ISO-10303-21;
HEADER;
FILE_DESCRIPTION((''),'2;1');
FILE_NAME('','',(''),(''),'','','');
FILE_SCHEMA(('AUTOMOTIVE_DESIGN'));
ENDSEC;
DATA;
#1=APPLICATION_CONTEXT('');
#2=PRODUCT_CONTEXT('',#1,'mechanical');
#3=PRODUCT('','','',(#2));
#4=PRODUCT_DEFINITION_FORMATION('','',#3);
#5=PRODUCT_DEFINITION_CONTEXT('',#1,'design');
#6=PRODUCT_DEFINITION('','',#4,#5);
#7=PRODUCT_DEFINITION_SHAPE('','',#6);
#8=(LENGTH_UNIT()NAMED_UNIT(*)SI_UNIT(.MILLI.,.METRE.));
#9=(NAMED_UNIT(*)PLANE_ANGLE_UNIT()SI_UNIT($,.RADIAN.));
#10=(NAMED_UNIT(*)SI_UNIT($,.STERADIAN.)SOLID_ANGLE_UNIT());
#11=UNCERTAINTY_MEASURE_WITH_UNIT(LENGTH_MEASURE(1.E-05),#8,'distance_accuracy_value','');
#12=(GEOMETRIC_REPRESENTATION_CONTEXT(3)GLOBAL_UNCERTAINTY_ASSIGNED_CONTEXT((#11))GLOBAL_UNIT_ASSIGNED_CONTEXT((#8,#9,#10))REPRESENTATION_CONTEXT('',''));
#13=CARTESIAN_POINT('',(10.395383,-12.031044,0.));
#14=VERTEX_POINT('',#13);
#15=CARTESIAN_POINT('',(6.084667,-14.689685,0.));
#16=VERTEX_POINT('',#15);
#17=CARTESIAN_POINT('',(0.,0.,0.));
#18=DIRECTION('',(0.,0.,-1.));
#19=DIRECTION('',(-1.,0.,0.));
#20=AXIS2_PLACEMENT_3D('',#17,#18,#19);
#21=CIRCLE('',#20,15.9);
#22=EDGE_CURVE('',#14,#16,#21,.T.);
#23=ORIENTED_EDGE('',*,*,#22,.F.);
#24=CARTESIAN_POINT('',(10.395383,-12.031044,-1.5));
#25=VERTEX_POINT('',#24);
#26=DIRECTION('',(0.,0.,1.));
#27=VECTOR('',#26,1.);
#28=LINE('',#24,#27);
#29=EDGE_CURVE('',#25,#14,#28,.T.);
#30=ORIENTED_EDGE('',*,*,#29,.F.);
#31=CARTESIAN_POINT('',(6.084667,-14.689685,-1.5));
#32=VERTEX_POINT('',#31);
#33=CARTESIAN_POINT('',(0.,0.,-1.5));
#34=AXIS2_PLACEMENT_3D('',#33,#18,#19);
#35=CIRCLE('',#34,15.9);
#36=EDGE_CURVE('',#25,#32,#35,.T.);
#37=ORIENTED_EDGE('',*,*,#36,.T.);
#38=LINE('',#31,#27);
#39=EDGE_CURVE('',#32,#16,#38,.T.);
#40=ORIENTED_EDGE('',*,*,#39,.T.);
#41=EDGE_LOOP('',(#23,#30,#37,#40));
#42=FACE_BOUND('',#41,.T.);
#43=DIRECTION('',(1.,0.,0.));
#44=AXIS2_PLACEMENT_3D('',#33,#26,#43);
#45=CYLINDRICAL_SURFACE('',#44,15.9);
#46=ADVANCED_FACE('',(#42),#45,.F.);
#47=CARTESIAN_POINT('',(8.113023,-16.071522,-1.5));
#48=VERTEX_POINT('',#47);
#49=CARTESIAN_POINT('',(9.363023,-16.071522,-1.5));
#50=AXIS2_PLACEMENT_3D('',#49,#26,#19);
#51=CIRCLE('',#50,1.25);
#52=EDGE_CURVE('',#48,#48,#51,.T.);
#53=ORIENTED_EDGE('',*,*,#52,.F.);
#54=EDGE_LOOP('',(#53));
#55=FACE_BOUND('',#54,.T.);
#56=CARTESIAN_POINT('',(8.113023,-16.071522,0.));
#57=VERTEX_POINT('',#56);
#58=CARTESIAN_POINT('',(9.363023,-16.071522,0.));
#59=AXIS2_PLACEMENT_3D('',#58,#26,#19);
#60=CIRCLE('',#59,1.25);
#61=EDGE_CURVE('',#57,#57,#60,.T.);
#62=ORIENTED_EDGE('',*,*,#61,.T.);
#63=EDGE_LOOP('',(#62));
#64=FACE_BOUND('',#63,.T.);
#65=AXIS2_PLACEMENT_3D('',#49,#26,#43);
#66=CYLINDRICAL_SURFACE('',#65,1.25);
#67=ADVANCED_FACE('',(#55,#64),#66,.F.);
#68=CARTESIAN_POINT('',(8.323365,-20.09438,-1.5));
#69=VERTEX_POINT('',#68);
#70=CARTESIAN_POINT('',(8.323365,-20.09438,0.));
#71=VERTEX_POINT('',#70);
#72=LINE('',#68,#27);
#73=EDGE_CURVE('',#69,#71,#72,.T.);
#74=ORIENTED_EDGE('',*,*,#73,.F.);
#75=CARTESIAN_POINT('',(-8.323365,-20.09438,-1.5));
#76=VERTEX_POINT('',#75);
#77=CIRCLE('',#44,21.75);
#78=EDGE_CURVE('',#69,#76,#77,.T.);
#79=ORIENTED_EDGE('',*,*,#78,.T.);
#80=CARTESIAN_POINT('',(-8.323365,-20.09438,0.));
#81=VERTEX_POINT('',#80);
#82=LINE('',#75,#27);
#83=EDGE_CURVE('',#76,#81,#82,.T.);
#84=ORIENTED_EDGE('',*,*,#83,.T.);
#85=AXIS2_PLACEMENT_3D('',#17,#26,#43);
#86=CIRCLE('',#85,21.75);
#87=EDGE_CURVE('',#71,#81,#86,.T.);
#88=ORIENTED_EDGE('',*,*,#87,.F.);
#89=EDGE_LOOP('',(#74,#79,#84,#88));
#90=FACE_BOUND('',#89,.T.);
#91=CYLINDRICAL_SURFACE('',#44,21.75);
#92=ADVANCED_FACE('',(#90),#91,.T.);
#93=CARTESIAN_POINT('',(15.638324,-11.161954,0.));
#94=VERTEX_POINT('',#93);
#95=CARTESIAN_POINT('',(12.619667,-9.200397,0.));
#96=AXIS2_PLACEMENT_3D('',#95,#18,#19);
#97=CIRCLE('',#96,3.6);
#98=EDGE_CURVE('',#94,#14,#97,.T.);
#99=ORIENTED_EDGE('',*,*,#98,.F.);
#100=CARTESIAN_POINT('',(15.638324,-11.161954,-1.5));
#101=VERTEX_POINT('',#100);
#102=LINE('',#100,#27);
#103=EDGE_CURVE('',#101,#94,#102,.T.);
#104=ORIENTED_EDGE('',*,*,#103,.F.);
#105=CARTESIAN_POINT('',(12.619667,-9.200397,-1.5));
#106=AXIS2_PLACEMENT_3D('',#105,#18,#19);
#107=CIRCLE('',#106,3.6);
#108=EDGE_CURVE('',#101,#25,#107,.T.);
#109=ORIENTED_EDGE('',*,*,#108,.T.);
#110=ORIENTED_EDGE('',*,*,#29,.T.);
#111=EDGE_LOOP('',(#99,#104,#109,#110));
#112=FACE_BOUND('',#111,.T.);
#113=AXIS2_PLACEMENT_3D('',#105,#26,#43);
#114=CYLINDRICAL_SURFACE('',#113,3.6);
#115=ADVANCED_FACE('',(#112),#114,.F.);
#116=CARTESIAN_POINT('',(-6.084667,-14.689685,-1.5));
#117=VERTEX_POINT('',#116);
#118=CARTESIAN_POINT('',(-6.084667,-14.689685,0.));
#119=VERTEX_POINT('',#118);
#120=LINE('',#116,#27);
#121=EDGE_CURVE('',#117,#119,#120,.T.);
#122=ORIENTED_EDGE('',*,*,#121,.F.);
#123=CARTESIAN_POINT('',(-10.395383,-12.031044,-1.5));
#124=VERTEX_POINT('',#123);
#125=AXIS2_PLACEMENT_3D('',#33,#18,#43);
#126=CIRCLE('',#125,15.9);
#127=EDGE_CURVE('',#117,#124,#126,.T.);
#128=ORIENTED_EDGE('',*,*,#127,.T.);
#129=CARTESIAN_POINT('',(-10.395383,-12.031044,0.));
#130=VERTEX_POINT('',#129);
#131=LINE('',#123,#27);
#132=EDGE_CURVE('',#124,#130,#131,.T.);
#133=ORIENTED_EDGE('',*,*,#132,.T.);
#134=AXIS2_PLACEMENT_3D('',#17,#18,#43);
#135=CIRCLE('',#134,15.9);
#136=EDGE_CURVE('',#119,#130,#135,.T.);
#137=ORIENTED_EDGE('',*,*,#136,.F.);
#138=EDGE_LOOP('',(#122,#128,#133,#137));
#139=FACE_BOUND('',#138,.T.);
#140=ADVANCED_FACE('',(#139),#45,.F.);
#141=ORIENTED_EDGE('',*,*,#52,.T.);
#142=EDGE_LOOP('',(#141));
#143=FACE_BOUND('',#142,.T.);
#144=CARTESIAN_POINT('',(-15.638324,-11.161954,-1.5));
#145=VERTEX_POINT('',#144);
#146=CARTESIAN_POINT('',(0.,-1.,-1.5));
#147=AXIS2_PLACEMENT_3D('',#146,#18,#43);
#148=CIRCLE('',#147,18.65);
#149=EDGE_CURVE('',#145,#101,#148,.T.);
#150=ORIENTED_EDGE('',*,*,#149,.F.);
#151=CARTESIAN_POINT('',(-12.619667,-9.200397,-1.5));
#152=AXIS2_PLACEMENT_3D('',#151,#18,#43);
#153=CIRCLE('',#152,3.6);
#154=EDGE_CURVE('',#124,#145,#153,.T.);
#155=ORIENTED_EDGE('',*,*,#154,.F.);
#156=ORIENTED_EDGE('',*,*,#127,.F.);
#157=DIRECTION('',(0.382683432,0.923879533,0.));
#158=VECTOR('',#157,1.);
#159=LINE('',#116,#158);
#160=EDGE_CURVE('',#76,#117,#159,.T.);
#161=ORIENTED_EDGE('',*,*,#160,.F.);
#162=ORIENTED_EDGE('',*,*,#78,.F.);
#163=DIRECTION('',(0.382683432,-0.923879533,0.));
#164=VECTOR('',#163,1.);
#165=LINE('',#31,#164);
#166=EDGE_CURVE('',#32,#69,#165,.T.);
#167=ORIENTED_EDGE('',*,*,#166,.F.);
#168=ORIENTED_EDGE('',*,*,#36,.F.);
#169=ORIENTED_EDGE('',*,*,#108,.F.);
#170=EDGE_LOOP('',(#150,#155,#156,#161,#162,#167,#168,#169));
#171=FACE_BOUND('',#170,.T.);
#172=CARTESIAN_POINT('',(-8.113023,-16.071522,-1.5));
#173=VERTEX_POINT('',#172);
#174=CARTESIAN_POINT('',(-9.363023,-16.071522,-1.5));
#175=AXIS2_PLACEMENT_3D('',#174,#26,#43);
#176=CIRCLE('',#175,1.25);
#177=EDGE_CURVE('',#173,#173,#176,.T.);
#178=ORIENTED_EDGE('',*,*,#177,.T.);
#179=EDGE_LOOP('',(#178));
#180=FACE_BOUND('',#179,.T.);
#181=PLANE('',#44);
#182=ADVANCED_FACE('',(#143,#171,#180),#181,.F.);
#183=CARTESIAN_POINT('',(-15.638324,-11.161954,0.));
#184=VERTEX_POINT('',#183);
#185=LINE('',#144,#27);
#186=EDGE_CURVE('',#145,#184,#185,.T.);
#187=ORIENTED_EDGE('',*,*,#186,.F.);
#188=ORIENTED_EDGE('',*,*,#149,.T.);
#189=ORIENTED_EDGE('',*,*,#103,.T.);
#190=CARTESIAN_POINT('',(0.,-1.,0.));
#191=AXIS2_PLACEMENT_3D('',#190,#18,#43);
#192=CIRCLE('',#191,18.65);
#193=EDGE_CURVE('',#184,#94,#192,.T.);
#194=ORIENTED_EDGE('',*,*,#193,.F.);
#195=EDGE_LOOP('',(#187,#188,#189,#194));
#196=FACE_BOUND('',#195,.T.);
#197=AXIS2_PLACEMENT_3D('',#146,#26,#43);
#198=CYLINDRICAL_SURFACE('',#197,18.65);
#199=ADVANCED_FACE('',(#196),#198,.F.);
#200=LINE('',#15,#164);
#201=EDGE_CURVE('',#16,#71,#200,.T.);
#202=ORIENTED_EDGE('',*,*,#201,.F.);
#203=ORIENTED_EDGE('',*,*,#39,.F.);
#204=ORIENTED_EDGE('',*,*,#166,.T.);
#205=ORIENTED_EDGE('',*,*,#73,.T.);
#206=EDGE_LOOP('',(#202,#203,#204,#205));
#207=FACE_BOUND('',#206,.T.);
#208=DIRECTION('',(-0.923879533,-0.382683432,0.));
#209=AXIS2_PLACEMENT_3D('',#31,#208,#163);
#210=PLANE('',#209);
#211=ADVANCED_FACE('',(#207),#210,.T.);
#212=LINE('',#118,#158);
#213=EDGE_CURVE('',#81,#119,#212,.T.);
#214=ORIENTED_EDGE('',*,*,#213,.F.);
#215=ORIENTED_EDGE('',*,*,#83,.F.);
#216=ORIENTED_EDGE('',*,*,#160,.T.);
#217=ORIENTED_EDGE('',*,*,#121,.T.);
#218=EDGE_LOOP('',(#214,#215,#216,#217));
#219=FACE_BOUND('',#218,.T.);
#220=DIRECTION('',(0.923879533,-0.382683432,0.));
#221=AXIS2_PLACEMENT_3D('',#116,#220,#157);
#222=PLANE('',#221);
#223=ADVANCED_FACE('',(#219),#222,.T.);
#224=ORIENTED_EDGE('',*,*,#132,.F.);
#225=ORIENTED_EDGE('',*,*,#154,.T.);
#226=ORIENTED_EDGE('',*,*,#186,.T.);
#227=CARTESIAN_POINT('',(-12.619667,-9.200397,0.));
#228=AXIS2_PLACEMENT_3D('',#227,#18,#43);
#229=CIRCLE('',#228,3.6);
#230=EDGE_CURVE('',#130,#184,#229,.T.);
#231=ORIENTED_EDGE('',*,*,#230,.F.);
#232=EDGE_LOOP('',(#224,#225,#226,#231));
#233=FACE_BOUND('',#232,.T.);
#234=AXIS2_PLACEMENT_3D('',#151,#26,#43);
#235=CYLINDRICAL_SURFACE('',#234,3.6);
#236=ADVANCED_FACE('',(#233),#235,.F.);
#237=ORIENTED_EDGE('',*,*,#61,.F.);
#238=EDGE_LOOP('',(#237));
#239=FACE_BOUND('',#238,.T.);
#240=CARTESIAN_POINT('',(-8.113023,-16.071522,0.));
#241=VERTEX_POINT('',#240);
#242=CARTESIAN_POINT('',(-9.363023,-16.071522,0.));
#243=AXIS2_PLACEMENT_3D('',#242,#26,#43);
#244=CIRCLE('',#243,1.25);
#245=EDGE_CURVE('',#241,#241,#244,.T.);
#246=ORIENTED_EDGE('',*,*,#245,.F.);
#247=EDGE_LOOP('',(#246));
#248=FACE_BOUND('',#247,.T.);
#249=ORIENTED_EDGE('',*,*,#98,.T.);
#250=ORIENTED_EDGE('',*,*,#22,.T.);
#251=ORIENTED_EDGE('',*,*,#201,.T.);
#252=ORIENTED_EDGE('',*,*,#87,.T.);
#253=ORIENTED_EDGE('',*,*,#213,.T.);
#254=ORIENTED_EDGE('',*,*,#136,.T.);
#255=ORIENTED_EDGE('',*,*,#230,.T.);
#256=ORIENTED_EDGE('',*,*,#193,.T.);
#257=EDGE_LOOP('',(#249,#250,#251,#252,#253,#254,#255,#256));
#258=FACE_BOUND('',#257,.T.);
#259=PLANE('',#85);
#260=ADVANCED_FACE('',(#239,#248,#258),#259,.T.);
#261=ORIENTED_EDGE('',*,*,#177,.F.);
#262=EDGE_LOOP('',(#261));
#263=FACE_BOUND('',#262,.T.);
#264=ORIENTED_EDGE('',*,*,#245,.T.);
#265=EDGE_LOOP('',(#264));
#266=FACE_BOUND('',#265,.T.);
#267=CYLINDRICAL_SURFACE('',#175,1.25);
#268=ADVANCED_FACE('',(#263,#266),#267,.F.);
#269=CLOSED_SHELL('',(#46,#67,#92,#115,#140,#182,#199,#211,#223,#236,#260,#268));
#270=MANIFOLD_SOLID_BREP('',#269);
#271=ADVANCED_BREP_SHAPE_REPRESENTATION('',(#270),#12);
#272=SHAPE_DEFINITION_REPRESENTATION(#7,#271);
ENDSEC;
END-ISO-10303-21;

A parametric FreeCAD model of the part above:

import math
import FreeCAD as App
import Part
import Sketcher
from FreeCAD import Vector
Q = App.Units.Quantity

doc = App.newDocument("Part")
body = doc.addObject("PartDesign::Body", "Body")

sketch1 = doc.addObject("Sketcher::SketchObject", "Sketch")
body.addObject(sketch1)
sketch1.AttachmentSupport = (doc.XY_Plane, [""])
sketch1.MapMode = "FlatFace"
sketch1.addGeometry([
    Part.LineSegment(Vector(-8.3, -20.1, 0), Vector(-6.1, -14.7, 0)),
    Part.ArcOfCircle(Part.Circle(Vector(0, 0, 0), Vector(0, 0, 1), 15.9), math.radians(-130.83), math.radians(-112.5)),
    Part.ArcOfCircle(Part.Circle(Vector(-12.6, -9.2, 0), Vector(0, 0, 1), 3.6), math.radians(-147), math.radians(-52)),
    Part.ArcOfCircle(Part.Circle(Vector(0, -1, 0), Vector(0, 0, 1), 18.6), math.radians(-33), math.radians(213)),
    Part.ArcOfCircle(Part.Circle(Vector(12.6, -9.2, 0), Vector(0, 0, 1), 3.6), math.radians(-128), math.radians(-33)),
    Part.ArcOfCircle(Part.Circle(Vector(0, 0, 0), Vector(0, 0, 1), 15.9), math.radians(-67.5), math.radians(-49.17)),
    Part.LineSegment(Vector(6.1, -14.7, 0), Vector(8.3, -20.1, 0)),
    Part.ArcOfCircle(Part.Circle(Vector(0, 0, 0), Vector(0, 0, 1), 21.8), math.radians(-67), math.radians(247)),
    Part.Circle(Vector(9.4, -16.1, 0), Vector(0, 0, 1), 1.2),
    Part.Circle(Vector(-9.4, -16.1, 0), Vector(0, 0, 1), 1.2),
], False)
sketch1.addConstraint([
    Sketcher.Constraint("Coincident", 0, 2, 1, 2),
    Sketcher.Constraint("Coincident", 1, 1, 2, 2),
    Sketcher.Constraint("Tangent", 2, 1, 3, 2),
    Sketcher.Constraint("Tangent", 3, 1, 4, 2),
    Sketcher.Constraint("Coincident", 4, 1, 5, 2),
    Sketcher.Constraint("Coincident", 5, 1, 6, 1),
    Sketcher.Constraint("Coincident", 6, 2, 7, 1),
    Sketcher.Constraint("Coincident", 7, 2, 0, 1),
    Sketcher.Constraint("Coincident", 1, 3, -1, 1),
    Sketcher.Constraint("Coincident", 5, 3, -1, 1),
    Sketcher.Constraint("Coincident", 7, 3, -1, 1),
    Sketcher.Constraint("Equal", 2, 4),
    Sketcher.Constraint("Equal", 1, 5),
    Sketcher.Constraint("Equal", 8, 9),
    Sketcher.Constraint("Symmetric", 2, 3, 4, 3, -2),
    Sketcher.Constraint("Symmetric", 8, 3, 9, 3, -2),
    Sketcher.Constraint("Horizontal", 0, 2, 5, 1),
    Sketcher.Constraint("Horizontal", 6, 2, 7, 2),
    Sketcher.Constraint("Diameter", 8, 2.5),
    Sketcher.Constraint("Radius", 1, 15.9),
    Sketcher.Constraint("Radius", 2, 3.6),
    Sketcher.Constraint("Radius", 3, 18.65),
    Sketcher.Constraint("Radius", 7, 21.75),
    Sketcher.Constraint("DistanceY", 3, 3, -1, 1, 1.0),
    Sketcher.Constraint("Angle", 0, Q("67.5 deg")),
    Sketcher.Constraint("DistanceX", 2, 3, 0, 2, 6.535),
    Sketcher.Constraint("DistanceX", 2, 1, 9, 3, 6.275302),
    Sketcher.Constraint("DistanceY", 8, 3, -1, 1, 16.071522),
    Sketcher.Constraint("DistanceY", 6, 2, -1, 1, 20.09438),
])
pad1 = doc.addObject("PartDesign::Pad", "Pad")
body.addObject(pad1)
pad1.Profile = sketch1
pad1.Length = 1.5
pad1.Reversed = True

doc.recompute()
